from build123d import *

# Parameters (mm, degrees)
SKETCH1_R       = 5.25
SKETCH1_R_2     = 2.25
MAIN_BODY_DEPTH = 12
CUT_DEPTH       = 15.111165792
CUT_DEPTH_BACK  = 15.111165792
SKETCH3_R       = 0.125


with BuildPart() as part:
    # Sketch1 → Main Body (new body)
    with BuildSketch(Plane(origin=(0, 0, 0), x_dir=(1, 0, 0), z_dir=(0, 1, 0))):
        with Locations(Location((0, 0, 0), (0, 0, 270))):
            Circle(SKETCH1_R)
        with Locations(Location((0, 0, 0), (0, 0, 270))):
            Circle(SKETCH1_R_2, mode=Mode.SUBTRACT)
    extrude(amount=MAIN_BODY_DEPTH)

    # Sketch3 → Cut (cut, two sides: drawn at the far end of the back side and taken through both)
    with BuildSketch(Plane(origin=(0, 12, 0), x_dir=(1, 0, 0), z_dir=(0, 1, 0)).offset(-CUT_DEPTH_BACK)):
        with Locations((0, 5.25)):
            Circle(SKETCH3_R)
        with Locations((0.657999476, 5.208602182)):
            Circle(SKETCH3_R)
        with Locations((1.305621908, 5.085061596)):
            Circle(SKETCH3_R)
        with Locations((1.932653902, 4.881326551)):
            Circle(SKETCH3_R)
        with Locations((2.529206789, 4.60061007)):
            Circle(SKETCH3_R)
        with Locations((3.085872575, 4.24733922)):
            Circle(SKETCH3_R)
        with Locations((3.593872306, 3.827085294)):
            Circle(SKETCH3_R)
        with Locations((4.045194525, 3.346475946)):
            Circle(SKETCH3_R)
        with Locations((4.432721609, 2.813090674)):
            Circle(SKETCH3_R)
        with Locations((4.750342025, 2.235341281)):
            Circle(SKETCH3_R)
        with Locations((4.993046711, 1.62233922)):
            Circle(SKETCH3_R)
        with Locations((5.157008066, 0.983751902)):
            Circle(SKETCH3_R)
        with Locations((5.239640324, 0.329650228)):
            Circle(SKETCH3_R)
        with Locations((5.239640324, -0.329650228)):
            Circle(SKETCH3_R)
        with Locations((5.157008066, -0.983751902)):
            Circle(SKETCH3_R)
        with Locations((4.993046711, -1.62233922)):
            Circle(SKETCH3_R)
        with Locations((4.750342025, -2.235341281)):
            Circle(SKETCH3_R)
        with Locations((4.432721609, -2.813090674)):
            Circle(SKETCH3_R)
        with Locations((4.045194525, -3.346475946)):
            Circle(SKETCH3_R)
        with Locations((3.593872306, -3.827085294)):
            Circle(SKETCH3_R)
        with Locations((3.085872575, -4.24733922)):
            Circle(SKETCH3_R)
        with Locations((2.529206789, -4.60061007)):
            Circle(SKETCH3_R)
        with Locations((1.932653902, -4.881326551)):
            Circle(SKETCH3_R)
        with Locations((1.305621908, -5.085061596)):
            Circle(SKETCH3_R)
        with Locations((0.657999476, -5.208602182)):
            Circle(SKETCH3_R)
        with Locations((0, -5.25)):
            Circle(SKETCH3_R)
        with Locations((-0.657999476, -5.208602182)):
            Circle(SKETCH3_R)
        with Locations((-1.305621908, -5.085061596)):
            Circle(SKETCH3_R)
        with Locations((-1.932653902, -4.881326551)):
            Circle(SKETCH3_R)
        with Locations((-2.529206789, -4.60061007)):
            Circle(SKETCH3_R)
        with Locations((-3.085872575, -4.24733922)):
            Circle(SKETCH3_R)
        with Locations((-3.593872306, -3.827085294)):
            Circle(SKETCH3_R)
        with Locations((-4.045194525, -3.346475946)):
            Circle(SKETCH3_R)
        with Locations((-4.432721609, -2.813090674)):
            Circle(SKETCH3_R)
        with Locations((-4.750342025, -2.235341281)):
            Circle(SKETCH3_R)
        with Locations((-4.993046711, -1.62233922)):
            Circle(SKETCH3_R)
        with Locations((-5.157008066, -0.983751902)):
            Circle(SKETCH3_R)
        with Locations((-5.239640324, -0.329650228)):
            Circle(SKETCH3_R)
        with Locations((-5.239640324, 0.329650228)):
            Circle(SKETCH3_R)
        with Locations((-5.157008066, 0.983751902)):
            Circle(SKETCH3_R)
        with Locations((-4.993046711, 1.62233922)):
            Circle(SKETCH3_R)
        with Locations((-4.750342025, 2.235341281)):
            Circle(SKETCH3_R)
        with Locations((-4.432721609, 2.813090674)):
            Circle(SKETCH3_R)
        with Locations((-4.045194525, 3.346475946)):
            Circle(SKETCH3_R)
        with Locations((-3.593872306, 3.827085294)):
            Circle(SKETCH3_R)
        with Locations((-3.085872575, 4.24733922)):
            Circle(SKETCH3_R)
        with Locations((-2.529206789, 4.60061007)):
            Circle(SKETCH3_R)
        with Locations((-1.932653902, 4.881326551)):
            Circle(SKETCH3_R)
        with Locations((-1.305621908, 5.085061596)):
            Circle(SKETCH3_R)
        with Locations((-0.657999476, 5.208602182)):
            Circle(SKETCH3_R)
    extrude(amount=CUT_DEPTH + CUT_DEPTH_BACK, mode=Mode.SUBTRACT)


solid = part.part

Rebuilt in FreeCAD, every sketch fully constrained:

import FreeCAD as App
import Part
import Sketcher

doc = App.newDocument("Part")
body = doc.addObject("PartDesign::Body", "Body")

sketch1 = doc.addObject("Sketcher::SketchObject", "Sketch")
body.addObject(sketch1)
sketch1.AttachmentSupport = (doc.XZ_Plane, [""])
sketch1.MapMode = "FlatFace"
sketch1.addGeometry([
    Part.Circle(App.Vector(0, 0, 0), App.Vector(0, 0, 1), 5.25),
    Part.Circle(App.Vector(0, 0, 0), App.Vector(0, 0, 1), 2.25),
], False)
sketch1.addConstraint([
    Sketcher.Constraint("Coincident", 0, 3, -1, 1),
    Sketcher.Constraint("Coincident", 1, 3, -1, 1),
    Sketcher.Constraint("Diameter", 0, 10.5),
    Sketcher.Constraint("Diameter", 1, 4.5),
])
pad1 = doc.addObject("PartDesign::Pad", "Pad")
body.addObject(pad1)
pad1.Profile = sketch1
pad1.Length = 12
pad1.Reversed = True

sketch2 = doc.addObject("Sketcher::SketchObject", "Sketch001")
body.addObject(sketch2)
sketch2.AttachmentSupport = (doc.XZ_Plane, [""])
sketch2.MapMode = "FlatFace"
sketch2.AttachmentOffset = App.Placement(App.Vector(0, 0, -12), App.Rotation())
sketch2.addGeometry([
    Part.Circle(App.Vector(0, -5.25, 0), App.Vector(0, 0, 1), 0.125),
    Part.Circle(App.Vector(0.657999, -5.208602, 0), App.Vector(0, 0, 1), 0.125),
    Part.Circle(App.Vector(1.305622, -5.085062, 0), App.Vector(0, 0, 1), 0.125),
    Part.Circle(App.Vector(1.932654, -4.881327, 0), App.Vector(0, 0, 1), 0.125),
    Part.Circle(App.Vector(2.529207, -4.60061, 0), App.Vector(0, 0, 1), 0.125),
    Part.Circle(App.Vector(3.085873, -4.247339, 0), App.Vector(0, 0, 1), 0.125),
    Part.Circle(App.Vector(3.593872, -3.827085, 0), App.Vector(0, 0, 1), 0.125),
    Part.Circle(App.Vector(4.045195, -3.346476, 0), App.Vector(0, 0, 1), 0.125),
    Part.Circle(App.Vector(4.432722, -2.813091, 0), App.Vector(0, 0, 1), 0.125),
    Part.Circle(App.Vector(4.750342, -2.235341, 0), App.Vector(0, 0, 1), 0.125),
    Part.Circle(App.Vector(4.993047, -1.622339, 0), App.Vector(0, 0, 1), 0.125),
    Part.Circle(App.Vector(5.157008, -0.983752, 0), App.Vector(0, 0, 1), 0.125),
    Part.Circle(App.Vector(5.23964, -0.32965, 0), App.Vector(0, 0, 1), 0.125),
    Part.Circle(App.Vector(5.23964, 0.32965, 0), App.Vector(0, 0, 1), 0.125),
    Part.Circle(App.Vector(5.157008, 0.983752, 0), App.Vector(0, 0, 1), 0.125),
    Part.Circle(App.Vector(4.993047, 1.622339, 0), App.Vector(0, 0, 1), 0.125),
    Part.Circle(App.Vector(4.750342, 2.235341, 0), App.Vector(0, 0, 1), 0.125),
    Part.Circle(App.Vector(4.432722, 2.813091, 0), App.Vector(0, 0, 1), 0.125),
    Part.Circle(App.Vector(4.045195, 3.346476, 0), App.Vector(0, 0, 1), 0.125),
    Part.Circle(App.Vector(3.593872, 3.827085, 0), App.Vector(0, 0, 1), 0.125),
    Part.Circle(App.Vector(3.085873, 4.247339, 0), App.Vector(0, 0, 1), 0.125),
    Part.Circle(App.Vector(2.529207, 4.60061, 0), App.Vector(0, 0, 1), 0.125),
    Part.Circle(App.Vector(1.932654, 4.881327, 0), App.Vector(0, 0, 1), 0.125),
    Part.Circle(App.Vector(1.305622, 5.085062, 0), App.Vector(0, 0, 1), 0.125),
    Part.Circle(App.Vector(0.657999, 5.208602, 0), App.Vector(0, 0, 1), 0.125),
    Part.Circle(App.Vector(0, 5.25, 0), App.Vector(0, 0, 1), 0.125),
    Part.Circle(App.Vector(-0.657999, 5.208602, 0), App.Vector(0, 0, 1), 0.125),
    Part.Circle(App.Vector(-1.305622, 5.085062, 0), App.Vector(0, 0, 1), 0.125),
    Part.Circle(App.Vector(-1.932654, 4.881327, 0), App.Vector(0, 0, 1), 0.125),
    Part.Circle(App.Vector(-2.529207, 4.60061, 0), App.Vector(0, 0, 1), 0.125),
    Part.Circle(App.Vector(-3.085873, 4.247339, 0), App.Vector(0, 0, 1), 0.125),
    Part.Circle(App.Vector(-3.593872, 3.827085, 0), App.Vector(0, 0, 1), 0.125),
    Part.Circle(App.Vector(-4.045195, 3.346476, 0), App.Vector(0, 0, 1), 0.125),
    Part.Circle(App.Vector(-4.432722, 2.813091, 0), App.Vector(0, 0, 1), 0.125),
    Part.Circle(App.Vector(-4.750342, 2.235341, 0), App.Vector(0, 0, 1), 0.125),
    Part.Circle(App.Vector(-4.993047, 1.622339, 0), App.Vector(0, 0, 1), 0.125),
    Part.Circle(App.Vector(-5.157008, 0.983752, 0), App.Vector(0, 0, 1), 0.125),
    Part.Circle(App.Vector(-5.23964, 0.32965, 0), App.Vector(0, 0, 1), 0.125),
    Part.Circle(App.Vector(-5.23964, -0.32965, 0), App.Vector(0, 0, 1), 0.125),
    Part.Circle(App.Vector(-5.157008, -0.983752, 0), App.Vector(0, 0, 1), 0.125),
    Part.Circle(App.Vector(-4.993047, -1.622339, 0), App.Vector(0, 0, 1), 0.125),
    Part.Circle(App.Vector(-4.750342, -2.235341, 0), App.Vector(0, 0, 1), 0.125),
    Part.Circle(App.Vector(-4.432722, -2.813091, 0), App.Vector(0, 0, 1), 0.125),
    Part.Circle(App.Vector(-4.045195, -3.346476, 0), App.Vector(0, 0, 1), 0.125),
    Part.Circle(App.Vector(-3.593872, -3.827085, 0), App.Vector(0, 0, 1), 0.125),
    Part.Circle(App.Vector(-3.085873, -4.247339, 0), App.Vector(0, 0, 1), 0.125),
    Part.Circle(App.Vector(-2.529207, -4.60061, 0), App.Vector(0, 0, 1), 0.125),
    Part.Circle(App.Vector(-1.932654, -4.881327, 0), App.Vector(0, 0, 1), 0.125),
    Part.Circle(App.Vector(-1.305622, -5.085062, 0), App.Vector(0, 0, 1), 0.125),
    Part.Circle(App.Vector(-0.657999, -5.208602, 0), App.Vector(0, 0, 1), 0.125),
], False)
sketch2.addConstraint([
    Sketcher.Constraint("Equal", 0, 1),
    Sketcher.Constraint("Equal", 1, 2),
    Sketcher.Constraint("Equal", 2, 3),
    Sketcher.Constraint("Equal", 3, 4),
    Sketcher.Constraint("Equal", 4, 5),
    Sketcher.Constraint("Equal", 5, 6),
    Sketcher.Constraint("Equal", 6, 7),
    Sketcher.Constraint("Equal", 7, 8),
    Sketcher.Constraint("Equal", 8, 9),
    Sketcher.Constraint("Equal", 9, 10),
    Sketcher.Constraint("Equal", 10, 11),
    Sketcher.Constraint("Equal", 11, 12),
    Sketcher.Constraint("Equal", 12, 13),
    Sketcher.Constraint("Equal", 13, 14),
    Sketcher.Constraint("Equal", 14, 15),
    Sketcher.Constraint("Equal", 15, 16),
    Sketcher.Constraint("Equal", 16, 17),
    Sketcher.Constraint("Equal", 17, 18),
    Sketcher.Constraint("Equal", 18, 19),
    Sketcher.Constraint("Equal", 19, 20),
    Sketcher.Constraint("Equal", 20, 21),
    Sketcher.Constraint("Equal", 21, 22),
    Sketcher.Constraint("Equal", 22, 23),
    Sketcher.Constraint("Equal", 23, 24),
    Sketcher.Constraint("Equal", 24, 25),
    Sketcher.Constraint("Equal", 25, 26),
    Sketcher.Constraint("Equal", 26, 27),
    Sketcher.Constraint("Equal", 27, 28),
    Sketcher.Constraint("Equal", 28, 29),
    Sketcher.Constraint("Equal", 29, 30),
    Sketcher.Constraint("Equal", 30, 31),
    Sketcher.Constraint("Equal", 31, 32),
    Sketcher.Constraint("Equal", 32, 33),
    Sketcher.Constraint("Equal", 33, 34),
    Sketcher.Constraint("Equal", 34, 35),
    Sketcher.Constraint("Equal", 35, 36),
    Sketcher.Constraint("Equal", 36, 37),
    Sketcher.Constraint("Equal", 37, 38),
    Sketcher.Constraint("Equal", 38, 39),
    Sketcher.Constraint("Equal", 39, 40),
    Sketcher.Constraint("Equal", 40, 41),
    Sketcher.Constraint("Equal", 41, 42),
    Sketcher.Constraint("Equal", 42, 43),
    Sketcher.Constraint("Equal", 43, 44),
    Sketcher.Constraint("Equal", 44, 45),
    Sketcher.Constraint("Equal", 45, 46),
    Sketcher.Constraint("Equal", 46, 47),
    Sketcher.Constraint("Equal", 47, 48),
    Sketcher.Constraint("Equal", 48, 49),
    Sketcher.Constraint("Symmetric", 0, 3, 25, 3, -1, 1),
    Sketcher.Constraint("Symmetric", 1, 3, 26, 3, -1, 1),
    Sketcher.Constraint("Symmetric", 2, 3, 27, 3, -1, 1),
    Sketcher.Constraint("Symmetric", 3, 3, 28, 3, -1, 1),
    Sketcher.Constraint("Symmetric", 4, 3, 29, 3, -1, 1),
    Sketcher.Constraint("Symmetric", 5, 3, 30, 3, -1, 1),
    Sketcher.Constraint("Symmetric", 6, 3, 31, 3, -1, 1),
    Sketcher.Constraint("Symmetric", 7, 3, 32, 3, -1, 1),
    Sketcher.Constraint("Symmetric", 8, 3, 33, 3, -1, 1),
    Sketcher.Constraint("Symmetric", 9, 3, 34, 3, -1, 1),
    Sketcher.Constraint("Symmetric", 10, 3, 35, 3, -1, 1),
    Sketcher.Constraint("Symmetric", 11, 3, 36, 3, -1, 1),
    Sketcher.Constraint("Symmetric", 12, 3, 37, 3, -1, 1),
    Sketcher.Constraint("Symmetric", 13, 3, 38, 3, -1, 1),
    Sketcher.Constraint("Symmetric", 14, 3, 39, 3, -1, 1),
    Sketcher.Constraint("Symmetric", 15, 3, 40, 3, -1, 1),
    Sketcher.Constraint("Symmetric", 16, 3, 41, 3, -1, 1),
    Sketcher.Constraint("Symmetric", 17, 3, 42, 3, -1, 1),
    Sketcher.Constraint("Symmetric", 18, 3, 43, 3, -1, 1),
    Sketcher.Constraint("Symmetric", 19, 3, 44, 3, -1, 1),
    Sketcher.Constraint("Symmetric", 20, 3, 45, 3, -1, 1),
    Sketcher.Constraint("Symmetric", 21, 3, 46, 3, -1, 1),
    Sketcher.Constraint("Symmetric", 22, 3, 47, 3, -1, 1),
    Sketcher.Constraint("Symmetric", 23, 3, 48, 3, -1, 1),
    Sketcher.Constraint("Symmetric", 24, 3, 49, 3, -1, 1),
    Sketcher.Constraint("Symmetric", 24, 3, 26, 3, -2),
    Sketcher.Constraint("Symmetric", 23, 3, 27, 3, -2),
    Sketcher.Constraint("Symmetric", 22, 3, 28, 3, -2),
    Sketcher.Constraint("Symmetric", 21, 3, 29, 3, -2),
    Sketcher.Constraint("Symmetric", 20, 3, 30, 3, -2),
    Sketcher.Constraint("Symmetric", 19, 3, 31, 3, -2),
    Sketcher.Constraint("Symmetric", 18, 3, 32, 3, -2),
    Sketcher.Constraint("Symmetric", 17, 3, 33, 3, -2),
    Sketcher.Constraint("Symmetric", 16, 3, 34, 3, -2),
    Sketcher.Constraint("Symmetric", 15, 3, 35, 3, -2),
    Sketcher.Constraint("Symmetric", 14, 3, 36, 3, -2),
    Sketcher.Constraint("Symmetric", 13, 3, 37, 3, -2),
    Sketcher.Constraint("PointOnObject", 0, 3, -2),
    Sketcher.Constraint("Diameter", 0, 0.25),
    Sketcher.Constraint("DistanceY", 0, 3, -1, 1, 5.25),
    Sketcher.Constraint("DistanceX", -1, 1, 1, 3, 0.657999),
    Sketcher.Constraint("DistanceX", 5, 3, 6, 3, 0.508),
    Sketcher.Constraint("DistanceY", 5, 3, 10, 3, 2.625),
    Sketcher.Constraint("DistanceY", 11, 3, 12, 3, 0.654102),
    Sketcher.Constraint("DistanceX", 9, 3, 12, 3, 0.489298),
    Sketcher.Constraint("DistanceY", 12, 3, 13, 3, 0.6593),
    Sketcher.Constraint("DistanceX", -1, 1, 2, 3, 1.305622),
    Sketcher.Constraint("DistanceY", 2, 3, -1, 1, 5.085062),
    Sketcher.Constraint("DistanceY", 4, 3, -1, 1, 4.60061),
    Sketcher.Constraint("DistanceY", 5, 3, -1, 1, 4.247339),
    Sketcher.Constraint("DistanceX", -1, 1, 8, 3, 4.432722),
    Sketcher.Constraint("DistanceY", 8, 3, -1, 1, 2.813091),
    Sketcher.Constraint("DistanceY", 9, 3, -1, 1, 2.235341),
    Sketcher.Constraint("DistanceX", -1, 1, 11, 3, 5.157008),
    Sketcher.Constraint("DistanceX", -1, 1, 12, 3, 5.23964),
    Sketcher.Constraint("DistanceY", 1, 3, 2, 3, 0.123541),
    Sketcher.Constraint("DistanceX", 2, 3, 3, 3, 0.627032),
    Sketcher.Constraint("DistanceX", 3, 3, 5, 3, 1.153219),
    Sketcher.Constraint("DistanceY", 3, 3, 6, 3, 1.054241),
    Sketcher.Constraint("DistanceY", 6, 3, 7, 3, 0.480609),
    Sketcher.Constraint("DistanceX", 5, 3, 7, 3, 0.959322),
    Sketcher.Constraint("DistanceX", 10, 3, 11, 3, 0.163961),
    Sketcher.Constraint("DistanceY", 3, 3, -1, 1, 4.881327),
    Sketcher.Constraint("DistanceX", -1, 1, 4, 3, 2.529207),
])
pocket1 = doc.addObject("PartDesign::Pocket", "Pocket")
body.addObject(pocket1)
pocket1.Profile = sketch2
pocket1.Type = "ThroughAll"
pocket1.Midplane = True

doc.recompute()
